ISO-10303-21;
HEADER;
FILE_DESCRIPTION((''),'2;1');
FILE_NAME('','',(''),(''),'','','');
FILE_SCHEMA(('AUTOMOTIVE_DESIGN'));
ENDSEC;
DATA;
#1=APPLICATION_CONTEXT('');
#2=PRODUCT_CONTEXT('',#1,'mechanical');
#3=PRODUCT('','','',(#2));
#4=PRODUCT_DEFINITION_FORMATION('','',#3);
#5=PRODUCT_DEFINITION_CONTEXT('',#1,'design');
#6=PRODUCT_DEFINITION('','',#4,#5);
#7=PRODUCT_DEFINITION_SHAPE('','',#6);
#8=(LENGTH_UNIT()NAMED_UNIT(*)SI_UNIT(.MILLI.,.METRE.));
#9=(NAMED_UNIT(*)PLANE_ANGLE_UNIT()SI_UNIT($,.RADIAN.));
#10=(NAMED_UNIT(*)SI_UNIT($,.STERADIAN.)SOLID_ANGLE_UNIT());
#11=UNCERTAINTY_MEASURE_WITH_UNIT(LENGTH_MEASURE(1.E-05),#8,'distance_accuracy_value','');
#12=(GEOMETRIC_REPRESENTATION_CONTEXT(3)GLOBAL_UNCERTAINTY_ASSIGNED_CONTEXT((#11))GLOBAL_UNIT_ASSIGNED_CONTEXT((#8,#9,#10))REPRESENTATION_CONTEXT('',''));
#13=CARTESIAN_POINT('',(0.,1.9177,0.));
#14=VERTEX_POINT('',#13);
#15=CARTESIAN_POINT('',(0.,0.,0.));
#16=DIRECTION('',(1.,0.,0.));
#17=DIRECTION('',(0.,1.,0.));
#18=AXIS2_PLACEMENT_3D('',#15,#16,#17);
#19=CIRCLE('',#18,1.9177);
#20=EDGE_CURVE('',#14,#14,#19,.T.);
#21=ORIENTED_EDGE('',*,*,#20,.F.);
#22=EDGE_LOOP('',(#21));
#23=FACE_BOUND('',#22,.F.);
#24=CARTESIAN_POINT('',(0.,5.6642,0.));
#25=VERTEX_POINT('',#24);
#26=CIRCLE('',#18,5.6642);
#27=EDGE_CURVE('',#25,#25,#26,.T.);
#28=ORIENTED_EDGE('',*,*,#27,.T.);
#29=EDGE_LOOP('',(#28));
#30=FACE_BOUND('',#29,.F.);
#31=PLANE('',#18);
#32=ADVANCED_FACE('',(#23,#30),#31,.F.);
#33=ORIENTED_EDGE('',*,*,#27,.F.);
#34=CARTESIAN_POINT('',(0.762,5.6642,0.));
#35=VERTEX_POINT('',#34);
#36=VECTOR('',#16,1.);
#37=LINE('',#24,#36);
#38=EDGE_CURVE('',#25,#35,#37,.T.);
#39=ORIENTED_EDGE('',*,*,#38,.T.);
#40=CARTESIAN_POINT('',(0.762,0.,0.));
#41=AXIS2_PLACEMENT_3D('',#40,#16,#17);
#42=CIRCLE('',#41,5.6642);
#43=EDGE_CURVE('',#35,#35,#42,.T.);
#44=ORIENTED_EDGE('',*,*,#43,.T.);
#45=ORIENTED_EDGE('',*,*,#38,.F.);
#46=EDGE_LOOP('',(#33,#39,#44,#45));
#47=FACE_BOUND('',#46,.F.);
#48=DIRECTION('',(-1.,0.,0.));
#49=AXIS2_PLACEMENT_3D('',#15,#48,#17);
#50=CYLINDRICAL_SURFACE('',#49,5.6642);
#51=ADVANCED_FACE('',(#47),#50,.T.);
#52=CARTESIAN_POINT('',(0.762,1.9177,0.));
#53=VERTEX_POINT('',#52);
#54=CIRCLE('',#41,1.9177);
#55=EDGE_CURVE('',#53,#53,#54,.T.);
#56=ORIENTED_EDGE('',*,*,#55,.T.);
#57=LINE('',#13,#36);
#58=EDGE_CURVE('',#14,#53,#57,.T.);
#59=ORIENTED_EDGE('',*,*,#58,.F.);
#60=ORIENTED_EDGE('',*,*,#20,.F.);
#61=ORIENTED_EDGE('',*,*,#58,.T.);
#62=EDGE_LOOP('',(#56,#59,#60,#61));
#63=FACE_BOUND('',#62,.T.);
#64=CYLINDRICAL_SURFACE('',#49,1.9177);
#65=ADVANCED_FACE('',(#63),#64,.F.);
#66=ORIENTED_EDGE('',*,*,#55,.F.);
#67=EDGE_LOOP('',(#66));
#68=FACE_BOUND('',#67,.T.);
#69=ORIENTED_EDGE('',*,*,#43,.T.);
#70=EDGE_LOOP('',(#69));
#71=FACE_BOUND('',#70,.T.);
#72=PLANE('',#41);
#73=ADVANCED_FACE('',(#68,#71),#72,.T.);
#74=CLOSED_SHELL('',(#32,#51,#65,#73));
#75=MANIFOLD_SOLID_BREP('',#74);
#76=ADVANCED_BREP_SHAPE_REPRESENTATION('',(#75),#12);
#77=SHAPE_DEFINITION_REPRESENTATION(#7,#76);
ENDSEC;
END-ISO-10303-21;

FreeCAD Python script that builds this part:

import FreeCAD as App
import Part
import Sketcher

V = App.Vector
Q = App.Units.Quantity

doc = App.newDocument("Part")
body = doc.addObject("PartDesign::Body", "Body")

# Sketch on YZ plane
sketch1 = body.newObject("Sketcher::SketchObject", "Sketch")
sketch1.AttachmentSupport = (doc.getObject("YZ_Plane"), [""])
sketch1.MapMode = "FlatFace"
sketch1.addGeometry([
    Part.Circle(V(0, 0, 0), V(0, 0, 1), 5.7),
    Part.Circle(V(0, 0, 0), V(0, 0, 1), 1.9),
], False)
sketch1.addConstraint([
    Sketcher.Constraint("Coincident", 0, 3, -1, 1),
    Sketcher.Constraint("Coincident", 1, 3, -1, 1),
    Sketcher.Constraint("Diameter", 0, Q("0.446 in")),
    Sketcher.Constraint("Diameter", 1, Q("0.151 in")),
])
pad1 = body.newObject("PartDesign::Pad", "Pad")
pad1.Profile = sketch1
pad1.Length = Q("0.03 in")

doc.recompute()
